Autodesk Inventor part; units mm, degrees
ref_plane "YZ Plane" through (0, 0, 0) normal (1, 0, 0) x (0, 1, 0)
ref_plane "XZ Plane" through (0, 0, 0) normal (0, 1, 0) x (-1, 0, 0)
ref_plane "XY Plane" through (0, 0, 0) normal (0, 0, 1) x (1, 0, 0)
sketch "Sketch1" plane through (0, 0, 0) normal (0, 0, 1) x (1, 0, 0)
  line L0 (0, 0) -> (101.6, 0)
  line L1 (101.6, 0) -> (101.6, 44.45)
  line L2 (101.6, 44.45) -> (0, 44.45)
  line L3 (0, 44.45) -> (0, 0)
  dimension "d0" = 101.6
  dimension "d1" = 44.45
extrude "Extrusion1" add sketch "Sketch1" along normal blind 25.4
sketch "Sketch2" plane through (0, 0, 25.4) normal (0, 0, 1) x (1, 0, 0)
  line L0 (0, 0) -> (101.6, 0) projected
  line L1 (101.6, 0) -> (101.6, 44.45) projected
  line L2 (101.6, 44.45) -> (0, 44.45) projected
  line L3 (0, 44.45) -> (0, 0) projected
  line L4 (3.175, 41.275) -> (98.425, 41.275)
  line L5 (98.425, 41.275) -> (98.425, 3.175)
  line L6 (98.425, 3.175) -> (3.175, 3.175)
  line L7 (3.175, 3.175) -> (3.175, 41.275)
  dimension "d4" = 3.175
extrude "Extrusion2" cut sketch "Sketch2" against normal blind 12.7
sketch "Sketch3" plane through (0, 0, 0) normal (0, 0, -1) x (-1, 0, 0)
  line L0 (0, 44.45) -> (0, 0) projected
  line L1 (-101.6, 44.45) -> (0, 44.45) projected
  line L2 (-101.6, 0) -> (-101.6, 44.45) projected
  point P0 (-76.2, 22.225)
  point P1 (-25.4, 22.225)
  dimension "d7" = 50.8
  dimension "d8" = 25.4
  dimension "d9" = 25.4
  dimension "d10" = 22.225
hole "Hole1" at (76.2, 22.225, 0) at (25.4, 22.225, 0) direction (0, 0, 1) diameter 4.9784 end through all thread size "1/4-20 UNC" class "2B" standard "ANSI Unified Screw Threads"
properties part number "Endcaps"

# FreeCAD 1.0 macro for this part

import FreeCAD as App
import Part
import Sketcher

V = App.Vector
Q = App.Units.Quantity

doc = App.newDocument("Part")
params = doc.addObject("Spreadsheet::Sheet", "Params")
for row, (alias, value) in enumerate([
    ("sketch1_width", "4 in"),
    ("sketch1_height", "1.75 in"),
    ("pad1_length", "1 in"),
    ("sketch2_width", "4 in"),
    ("sketch2_height", "1.5 in"),
    ("pocket1_length", "0.5 in"),
    ("sketch3_diameter", "0.196 in"),
    ("hole_diameter", "0.196 in"),
], start=1):
    params.set(f"A{row}", alias)
    params.set(f"B{row}", "=" + value)
    params.setAlias(f"B{row}", alias)

body = doc.addObject("PartDesign::Body", "Body")

sketch1 = body.newObject("Sketcher::SketchObject", "Sketch")
sketch1.AttachmentSupport = (doc.getObject("XY_Plane"), [""])
sketch1.MapMode = "FlatFace"
sketch1.addGeometry([
    Part.LineSegment(V(0, 44, 0), V(0, 0, 0)),
    Part.LineSegment(V(0, 0, 0), V(102, 0, 0)),
    Part.LineSegment(V(102, 0, 0), V(102, 44, 0)),
    Part.LineSegment(V(102, 44, 0), V(0, 44, 0)),
], False)
sketch1.addConstraint([
    Sketcher.Constraint("Coincident", 0, 2, 1, 1),
    Sketcher.Constraint("Coincident", 1, 2, 2, 1),
    Sketcher.Constraint("Coincident", 2, 2, 3, 1),
    Sketcher.Constraint("Coincident", 3, 2, 0, 1),
    Sketcher.Constraint("Vertical", 0),
    Sketcher.Constraint("Horizontal", 1),
    Sketcher.Constraint("Vertical", 2),
    Sketcher.Constraint("Horizontal", 3),
    Sketcher.Constraint("Coincident", 0, 2, -1, 1),
    Sketcher.Constraint("DistanceX", 1, 1, 1, 2, Q("4 in")),
    Sketcher.Constraint("DistanceY", 0, 2, 0, 1, Q("1.75 in")),
])
sketch1.setExpression("Constraints[9]", "Params.sketch1_width")
sketch1.setExpression("Constraints[10]", "Params.sketch1_height")
pad1 = body.newObject("PartDesign::Pad", "Pad")
pad1.Profile = sketch1
pad1.setExpression("Length", "Params.pad1_length")

sketch2 = body.newObject("Sketcher::SketchObject", "Sketch001")
sketch2.AttachmentSupport = (doc.getObject("XY_Plane"), [""])
sketch2.MapMode = "FlatFace"
sketch2.AttachmentOffset = App.Placement(V(0, 0, 1 * 25.4), App.Rotation())
sketch2.addGeometry([
    Part.LineSegment(V(0, 44, 0), V(0, 0, 0)),
    Part.LineSegment(V(0, 0, 0), V(102, 0, 0)),
    Part.LineSegment(V(102, 0, 0), V(102, 44, 0)),
    Part.LineSegment(V(102, 44, 0), V(0, 44, 0)),
    Part.LineSegment(V(3, 3, 0), V(3, 41, 0)),
    Part.LineSegment(V(3, 41, 0), V(98, 41, 0)),
    Part.LineSegment(V(98, 41, 0), V(98, 3, 0)),
    Part.LineSegment(V(98, 3, 0), V(3, 3, 0)),
], False)
sketch2.addConstraint([
    Sketcher.Constraint("Coincident", 0, 2, 1, 1),
    Sketcher.Constraint("Coincident", 1, 2, 2, 1),
    Sketcher.Constraint("Coincident", 2, 2, 3, 1),
    Sketcher.Constraint("Coincident", 3, 2, 0, 1),
    Sketcher.Constraint("Coincident", 4, 2, 5, 1),
    Sketcher.Constraint("Coincident", 5, 2, 6, 1),
    Sketcher.Constraint("Coincident", 6, 2, 7, 1),
    Sketcher.Constraint("Coincident", 7, 2, 4, 1),
    Sketcher.Constraint("Vertical", 0),
    Sketcher.Constraint("Horizontal", 1),
    Sketcher.Constraint("Vertical", 2),
    Sketcher.Constraint("Horizontal", 3),
    Sketcher.Constraint("Vertical", 4),
    Sketcher.Constraint("Horizontal", 5),
    Sketcher.Constraint("Vertical", 6),
    Sketcher.Constraint("Horizontal", 7),
    Sketcher.Constraint("Coincident", 0, 2, -1, 1),
    Sketcher.Constraint("DistanceX", 1, 1, 1, 2, Q("4 in")),
    Sketcher.Constraint("DistanceY", 4, 1, 4, 2, Q("1.5 in")),
    Sketcher.Constraint("DistanceX", -1, 1, 4, 2, Q("0.125 in")),
    Sketcher.Constraint("DistanceY", -1, 1, 6, 2, Q("0.125 in")),
    Sketcher.Constraint("DistanceY", 4, 2, 3, 2, Q("0.125 in")),
    Sketcher.Constraint("DistanceX", 5, 2, 2, 2, Q("0.125 in")),
])
sketch2.setExpression("Constraints[17]", "Params.sketch2_width")
sketch2.setExpression("Constraints[18]", "Params.sketch2_height")
pocket1 = body.newObject("PartDesign::Pocket", "Pocket")
pocket1.Profile = sketch2
pocket1.setExpression("Length", "Params.pocket1_length")

sketch3 = body.newObject("Sketcher::SketchObject", "Sketch002")
sketch3.AttachmentSupport = (doc.getObject("XY_Plane"), [""])
sketch3.MapMode = "FlatFace"
sketch3.addGeometry([
    Part.Circle(V(76.2, 22.2, 0), V(0, 0, 1), 2.5),
    Part.Circle(V(25.4, 22.2, 0), V(0, 0, 1), 2.5),
], False)
sketch3.addConstraint([
    Sketcher.Constraint("Equal", 0, 1),
    Sketcher.Constraint("Horizontal", 0, 3, 1, 3),
    Sketcher.Constraint("Diameter", 0, Q("0.196 in")),
    Sketcher.Constraint("DistanceX", -1, 1, 0, 3, Q("3 in")),
    Sketcher.Constraint("DistanceX", -1, 1, 1, 3, Q("1 in")),
    Sketcher.Constraint("DistanceY", -1, 1, 0, 3, Q("0.875 in")),
])
sketch3.setExpression("Constraints[2]", "Params.sketch3_diameter")
doc.recompute()
hole = body.newObject("PartDesign::Hole", "Hole")
hole.Profile = sketch3
hole.ThreadType = "None"
hole.setExpression("Diameter", "Params.hole_diameter")
hole.DepthType = "ThroughAll"
hole.Reversed = True

doc.recompute()
